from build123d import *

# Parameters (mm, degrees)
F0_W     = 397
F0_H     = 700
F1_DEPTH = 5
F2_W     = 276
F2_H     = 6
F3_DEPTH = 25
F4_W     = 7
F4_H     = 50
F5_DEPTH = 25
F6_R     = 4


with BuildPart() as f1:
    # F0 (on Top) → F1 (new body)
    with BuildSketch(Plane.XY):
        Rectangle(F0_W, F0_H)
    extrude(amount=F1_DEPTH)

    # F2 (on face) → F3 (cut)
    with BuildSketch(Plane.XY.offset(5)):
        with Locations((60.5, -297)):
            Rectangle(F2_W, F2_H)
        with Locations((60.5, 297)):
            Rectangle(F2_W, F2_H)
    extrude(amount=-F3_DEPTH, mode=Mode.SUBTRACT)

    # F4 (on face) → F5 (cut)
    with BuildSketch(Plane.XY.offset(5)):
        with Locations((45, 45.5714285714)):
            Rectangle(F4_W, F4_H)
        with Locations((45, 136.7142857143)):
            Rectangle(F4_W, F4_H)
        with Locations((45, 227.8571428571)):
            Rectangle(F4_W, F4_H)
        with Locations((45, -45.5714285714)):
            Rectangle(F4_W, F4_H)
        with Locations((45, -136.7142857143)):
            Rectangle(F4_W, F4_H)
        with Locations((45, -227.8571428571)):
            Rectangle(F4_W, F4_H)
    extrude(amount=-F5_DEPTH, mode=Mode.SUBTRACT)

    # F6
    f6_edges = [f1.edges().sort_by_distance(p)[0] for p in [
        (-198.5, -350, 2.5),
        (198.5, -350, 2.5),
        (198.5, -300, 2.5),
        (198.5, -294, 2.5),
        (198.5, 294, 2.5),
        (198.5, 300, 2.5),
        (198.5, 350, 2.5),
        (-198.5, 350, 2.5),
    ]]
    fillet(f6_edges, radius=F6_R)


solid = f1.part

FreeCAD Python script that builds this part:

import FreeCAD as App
import Part
import Sketcher
Q = App.Units.Quantity


def edges_at(feature, points):
    """Names of the edges that pass closest to the given points."""
    edges = feature.Shape.Edges
    near = lambda p: min(range(len(edges)), key=lambda i: edges[i].distToShape(Part.Vertex(*p))[0])
    return sorted({f"Edge{near(p) + 1}" for p in points})

doc = App.newDocument("Part")
body = doc.addObject("PartDesign::Body", "Body")

sketch1 = body.newObject("Sketcher::SketchObject", "Sketch")
sketch1.AttachmentSupport = (doc.getObject("XY_Plane"), [""])
sketch1.MapMode = "FlatFace"
sketch1.addGeometry(Part.LineSegment(App.Vector(-198, 350, 0), App.Vector(-198, -350, 0)), False)
sketch1.addGeometry(Part.LineSegment(App.Vector(-198, -350, 0), App.Vector(198, -350, 0)), False)
sketch1.addGeometry(Part.LineSegment(App.Vector(198, -350, 0), App.Vector(198, 350, 0)), False)
sketch1.addGeometry(Part.LineSegment(App.Vector(198, 350, 0), App.Vector(-198, 350, 0)), False)
sketch1.addConstraint(Sketcher.Constraint("Coincident", 0, 2, 1, 1))
sketch1.addConstraint(Sketcher.Constraint("Coincident", 1, 2, 2, 1))
sketch1.addConstraint(Sketcher.Constraint("Coincident", 2, 2, 3, 1))
sketch1.addConstraint(Sketcher.Constraint("Coincident", 3, 2, 0, 1))
sketch1.addConstraint(Sketcher.Constraint("Vertical", 0))
sketch1.addConstraint(Sketcher.Constraint("Horizontal", 1))
sketch1.addConstraint(Sketcher.Constraint("Vertical", 2))
sketch1.addConstraint(Sketcher.Constraint("Horizontal", 3))
sketch1.addConstraint(Sketcher.Constraint("Symmetric", 0, 2, 2, 2, -1, 1))
sketch1.addConstraint(Sketcher.Constraint("DistanceX", 1, 1, 1, 2, Q("397 mm")))
sketch1.addConstraint(Sketcher.Constraint("DistanceY", 0, 2, 0, 1, Q("700 mm")))
pad1 = body.newObject("PartDesign::Pad", "Pad")
pad1.Profile = sketch1
pad1.Length = 5

sketch2 = body.newObject("Sketcher::SketchObject", "Sketch001")
sketch2.AttachmentSupport = (doc.getObject("XY_Plane"), [""])
sketch2.MapMode = "FlatFace"
sketch2.AttachmentOffset = App.Placement(App.Vector(0, 0, 5), App.Rotation())
sketch2.addGeometry(Part.LineSegment(App.Vector(-78, -294, 0), App.Vector(-78, -300, 0)), False)
sketch2.addGeometry(Part.LineSegment(App.Vector(-78, -300, 0), App.Vector(198, -300, 0)), False)
sketch2.addGeometry(Part.LineSegment(App.Vector(198, -300, 0), App.Vector(198, -294, 0)), False)
sketch2.addGeometry(Part.LineSegment(App.Vector(198, -294, 0), App.Vector(-78, -294, 0)), False)
sketch2.addGeometry(Part.LineSegment(App.Vector(-78, 300, 0), App.Vector(-78, 294, 0)), False)
sketch2.addGeometry(Part.LineSegment(App.Vector(-78, 294, 0), App.Vector(198, 294, 0)), False)
sketch2.addGeometry(Part.LineSegment(App.Vector(198, 294, 0), App.Vector(198, 300, 0)), False)
sketch2.addGeometry(Part.LineSegment(App.Vector(198, 300, 0), App.Vector(-78, 300, 0)), False)
sketch2.addConstraint(Sketcher.Constraint("Coincident", 0, 2, 1, 1))
sketch2.addConstraint(Sketcher.Constraint("Coincident", 1, 2, 2, 1))
sketch2.addConstraint(Sketcher.Constraint("Coincident", 2, 2, 3, 1))
sketch2.addConstraint(Sketcher.Constraint("Coincident", 3, 2, 0, 1))
sketch2.addConstraint(Sketcher.Constraint("Coincident", 4, 2, 5, 1))
sketch2.addConstraint(Sketcher.Constraint("Coincident", 5, 2, 6, 1))
sketch2.addConstraint(Sketcher.Constraint("Coincident", 6, 2, 7, 1))
sketch2.addConstraint(Sketcher.Constraint("Coincident", 7, 2, 4, 1))
sketch2.addConstraint(Sketcher.Constraint("Vertical", 0))
sketch2.addConstraint(Sketcher.Constraint("Horizontal", 1))
sketch2.addConstraint(Sketcher.Constraint("Vertical", 2))
sketch2.addConstraint(Sketcher.Constraint("Horizontal", 3))
sketch2.addConstraint(Sketcher.Constraint("Vertical", 4))
sketch2.addConstraint(Sketcher.Constraint("Horizontal", 5))
sketch2.addConstraint(Sketcher.Constraint("Vertical", 6))
sketch2.addConstraint(Sketcher.Constraint("Horizontal", 7))
sketch2.addConstraint(Sketcher.Constraint("Symmetric", 3, 2, 4, 2, -1))
sketch2.addConstraint(Sketcher.Constraint("Symmetric", 1, 2, 6, 2, -1))
sketch2.addConstraint(Sketcher.Constraint("DistanceX", 1, 1, 1, 2, Q("276 mm")))
sketch2.addConstraint(Sketcher.Constraint("DistanceY", 0, 2, 0, 1, Q("6 mm")))
sketch2.addConstraint(Sketcher.Constraint("DistanceY", 0, 2, -1, 1, Q("300 mm")))
sketch2.addConstraint(Sketcher.Constraint("DistanceX", 0, 2, -1, 1, Q("77.5 mm")))
pocket1 = body.newObject("PartDesign::Pocket", "Pocket")
pocket1.Profile = sketch2
pocket1.Length = 25

sketch3 = body.newObject("Sketcher::SketchObject", "Sketch002")
sketch3.AttachmentSupport = (doc.getObject("XY_Plane"), [""])
sketch3.MapMode = "FlatFace"
sketch3.AttachmentOffset = App.Placement(App.Vector(0, 0, 5), App.Rotation())
sketch3.addGeometry(Part.LineSegment(App.Vector(42, 71, 0), App.Vector(42, 21, 0)), False)
sketch3.addGeometry(Part.LineSegment(App.Vector(42, 21, 0), App.Vector(48, 21, 0)), False)
sketch3.addGeometry(Part.LineSegment(App.Vector(48, 21, 0), App.Vector(48, 71, 0)), False)
sketch3.addGeometry(Part.LineSegment(App.Vector(48, 71, 0), App.Vector(42, 71, 0)), False)
sketch3.addGeometry(Part.LineSegment(App.Vector(42, 162, 0), App.Vector(42, 112, 0)), False)
sketch3.addGeometry(Part.LineSegment(App.Vector(42, 112, 0), App.Vector(48, 112, 0)), False)
sketch3.addGeometry(Part.LineSegment(App.Vector(48, 112, 0), App.Vector(48, 162, 0)), False)
sketch3.addGeometry(Part.LineSegment(App.Vector(48, 162, 0), App.Vector(42, 162, 0)), False)
sketch3.addGeometry(Part.LineSegment(App.Vector(42, 253, 0), App.Vector(42, 203, 0)), False)
sketch3.addGeometry(Part.LineSegment(App.Vector(42, 203, 0), App.Vector(48, 203, 0)), False)
sketch3.addGeometry(Part.LineSegment(App.Vector(48, 203, 0), App.Vector(48, 253, 0)), False)
sketch3.addGeometry(Part.LineSegment(App.Vector(48, 253, 0), App.Vector(42, 253, 0)), False)
sketch3.addGeometry(Part.LineSegment(App.Vector(42, -21, 0), App.Vector(42, -71, 0)), False)
sketch3.addGeometry(Part.LineSegment(App.Vector(42, -71, 0), App.Vector(48, -71, 0)), False)
sketch3.addGeometry(Part.LineSegment(App.Vector(48, -71, 0), App.Vector(48, -21, 0)), False)
sketch3.addGeometry(Part.LineSegment(App.Vector(48, -21, 0), App.Vector(42, -21, 0)), False)
sketch3.addGeometry(Part.LineSegment(App.Vector(42, -112, 0), App.Vector(42, -162, 0)), False)
sketch3.addGeometry(Part.LineSegment(App.Vector(42, -162, 0), App.Vector(48, -162, 0)), False)
sketch3.addGeometry(Part.LineSegment(App.Vector(48, -162, 0), App.Vector(48, -112, 0)), False)
sketch3.addGeometry(Part.LineSegment(App.Vector(48, -112, 0), App.Vector(42, -112, 0)), False)
sketch3.addGeometry(Part.LineSegment(App.Vector(42, -203, 0), App.Vector(42, -253, 0)), False)
sketch3.addGeometry(Part.LineSegment(App.Vector(42, -253, 0), App.Vector(48, -253, 0)), False)
sketch3.addGeometry(Part.LineSegment(App.Vector(48, -253, 0), App.Vector(48, -203, 0)), False)
sketch3.addGeometry(Part.LineSegment(App.Vector(48, -203, 0), App.Vector(42, -203, 0)), False)
sketch3.addConstraint(Sketcher.Constraint("Coincident", 0, 2, 1, 1))
sketch3.addConstraint(Sketcher.Constraint("Coincident", 1, 2, 2, 1))
sketch3.addConstraint(Sketcher.Constraint("Coincident", 2, 2, 3, 1))
sketch3.addConstraint(Sketcher.Constraint("Coincident", 3, 2, 0, 1))
sketch3.addConstraint(Sketcher.Constraint("Coincident", 4, 2, 5, 1))
sketch3.addConstraint(Sketcher.Constraint("Coincident", 5, 2, 6, 1))
sketch3.addConstraint(Sketcher.Constraint("Coincident", 6, 2, 7, 1))
sketch3.addConstraint(Sketcher.Constraint("Coincident", 7, 2, 4, 1))
sketch3.addConstraint(Sketcher.Constraint("Coincident", 8, 2, 9, 1))
sketch3.addConstraint(Sketcher.Constraint("Coincident", 9, 2, 10, 1))
sketch3.addConstraint(Sketcher.Constraint("Coincident", 10, 2, 11, 1))
sketch3.addConstraint(Sketcher.Constraint("Coincident", 11, 2, 8, 1))
sketch3.addConstraint(Sketcher.Constraint("Coincident", 12, 2, 13, 1))
sketch3.addConstraint(Sketcher.Constraint("Coincident", 13, 2, 14, 1))
sketch3.addConstraint(Sketcher.Constraint("Coincident", 14, 2, 15, 1))
sketch3.addConstraint(Sketcher.Constraint("Coincident", 15, 2, 12, 1))
sketch3.addConstraint(Sketcher.Constraint("Coincident", 16, 2, 17, 1))
sketch3.addConstraint(Sketcher.Constraint("Coincident", 17, 2, 18, 1))
sketch3.addConstraint(Sketcher.Constraint("Coincident", 18, 2, 19, 1))
sketch3.addConstraint(Sketcher.Constraint("Coincident", 19, 2, 16, 1))
sketch3.addConstraint(Sketcher.Constraint("Coincident", 20, 2, 21, 1))
sketch3.addConstraint(Sketcher.Constraint("Coincident", 21, 2, 22, 1))
sketch3.addConstraint(Sketcher.Constraint("Coincident", 22, 2, 23, 1))
sketch3.addConstraint(Sketcher.Constraint("Coincident", 23, 2, 20, 1))
sketch3.addConstraint(Sketcher.Constraint("Vertical", 0))
sketch3.addConstraint(Sketcher.Constraint("Horizontal", 1))
sketch3.addConstraint(Sketcher.Constraint("Vertical", 2))
sketch3.addConstraint(Sketcher.Constraint("Horizontal", 3))
sketch3.addConstraint(Sketcher.Constraint("Vertical", 4))
sketch3.addConstraint(Sketcher.Constraint("Horizontal", 5))
sketch3.addConstraint(Sketcher.Constraint("Vertical", 6))
sketch3.addConstraint(Sketcher.Constraint("Horizontal", 7))
sketch3.addConstraint(Sketcher.Constraint("Vertical", 8))
sketch3.addConstraint(Sketcher.Constraint("Horizontal", 9))
sketch3.addConstraint(Sketcher.Constraint("Vertical", 10))
sketch3.addConstraint(Sketcher.Constraint("Horizontal", 11))
sketch3.addConstraint(Sketcher.Constraint("Vertical", 12))
sketch3.addConstraint(Sketcher.Constraint("Horizontal", 13))
sketch3.addConstraint(Sketcher.Constraint("Vertical", 14))
sketch3.addConstraint(Sketcher.Constraint("Horizontal", 15))
sketch3.addConstraint(Sketcher.Constraint("Vertical", 16))
sketch3.addConstraint(Sketcher.Constraint("Horizontal", 17))
sketch3.addConstraint(Sketcher.Constraint("Vertical", 18))
sketch3.addConstraint(Sketcher.Constraint("Horizontal", 19))
sketch3.addConstraint(Sketcher.Constraint("Vertical", 20))
sketch3.addConstraint(Sketcher.Constraint("Horizontal", 21))
sketch3.addConstraint(Sketcher.Constraint("Vertical", 22))
sketch3.addConstraint(Sketcher.Constraint("Horizontal", 23))
sketch3.addConstraint(Sketcher.Constraint("Symmetric", 3, 2, 12, 2, -1))
sketch3.addConstraint(Sketcher.Constraint("Symmetric", 1, 2, 14, 2, -1))
sketch3.addConstraint(Sketcher.Constraint("Symmetric", 7, 2, 16, 2, -1))
sketch3.addConstraint(Sketcher.Constraint("Symmetric", 5, 2, 18, 2, -1))
sketch3.addConstraint(Sketcher.Constraint("Symmetric", 11, 2, 20, 2, -1))
sketch3.addConstraint(Sketcher.Constraint("Symmetric", 9, 2, 22, 2, -1))
sketch3.addConstraint(Sketcher.Constraint("Vertical", 3, 2, 4, 2))
sketch3.addConstraint(Sketcher.Constraint("Vertical", 2, 2, 5, 2))
sketch3.addConstraint(Sketcher.Constraint("Vertical", 7, 2, 8, 2))
sketch3.addConstraint(Sketcher.Constraint("Vertical", 6, 2, 9, 2))
sketch3.addConstraint(Sketcher.Constraint("Equal", 2, 4))
sketch3.addConstraint(Sketcher.Constraint("Equal", 6, 8))
sketch3.addConstraint(Sketcher.Constraint("DistanceX", 1, 1, 1, 2, Q("7 mm")))
sketch3.addConstraint(Sketcher.Constraint("DistanceY", 0, 2, 0, 1, Q("50 mm")))
sketch3.addConstraint(Sketcher.Constraint("DistanceX", -1, 1, 0, 2, Q("41.5 mm")))
sketch3.addConstraint(Sketcher.Constraint("DistanceY", -1, 1, 0, 2, Q("20.571429 mm")))
sketch3.addConstraint(Sketcher.Constraint("DistanceY", -1, 1, 4, 2, Q("111.714286 mm")))
sketch3.addConstraint(Sketcher.Constraint("DistanceY", -1, 1, 8, 2, Q("202.857143 mm")))
pocket2 = body.newObject("PartDesign::Pocket", "Pocket001")
pocket2.Profile = sketch3
pocket2.Length = 25
doc.recompute()

fillet = body.newObject("PartDesign::Fillet", "Fillet")
fillet.Base = (pocket2, edges_at(pocket2, [
    (-198.5, -350, 2.5),
    (198.5, -350, 2.5),
    (198.5, -300, 2.5),
    (198.5, -294, 2.5),
    (198.5, 294, 2.5),
    (198.5, 300, 2.5),
    (198.5, 350, 2.5),
    (-198.5, 350, 2.5),
]))
fillet.Radius = 4

doc.recompute()
